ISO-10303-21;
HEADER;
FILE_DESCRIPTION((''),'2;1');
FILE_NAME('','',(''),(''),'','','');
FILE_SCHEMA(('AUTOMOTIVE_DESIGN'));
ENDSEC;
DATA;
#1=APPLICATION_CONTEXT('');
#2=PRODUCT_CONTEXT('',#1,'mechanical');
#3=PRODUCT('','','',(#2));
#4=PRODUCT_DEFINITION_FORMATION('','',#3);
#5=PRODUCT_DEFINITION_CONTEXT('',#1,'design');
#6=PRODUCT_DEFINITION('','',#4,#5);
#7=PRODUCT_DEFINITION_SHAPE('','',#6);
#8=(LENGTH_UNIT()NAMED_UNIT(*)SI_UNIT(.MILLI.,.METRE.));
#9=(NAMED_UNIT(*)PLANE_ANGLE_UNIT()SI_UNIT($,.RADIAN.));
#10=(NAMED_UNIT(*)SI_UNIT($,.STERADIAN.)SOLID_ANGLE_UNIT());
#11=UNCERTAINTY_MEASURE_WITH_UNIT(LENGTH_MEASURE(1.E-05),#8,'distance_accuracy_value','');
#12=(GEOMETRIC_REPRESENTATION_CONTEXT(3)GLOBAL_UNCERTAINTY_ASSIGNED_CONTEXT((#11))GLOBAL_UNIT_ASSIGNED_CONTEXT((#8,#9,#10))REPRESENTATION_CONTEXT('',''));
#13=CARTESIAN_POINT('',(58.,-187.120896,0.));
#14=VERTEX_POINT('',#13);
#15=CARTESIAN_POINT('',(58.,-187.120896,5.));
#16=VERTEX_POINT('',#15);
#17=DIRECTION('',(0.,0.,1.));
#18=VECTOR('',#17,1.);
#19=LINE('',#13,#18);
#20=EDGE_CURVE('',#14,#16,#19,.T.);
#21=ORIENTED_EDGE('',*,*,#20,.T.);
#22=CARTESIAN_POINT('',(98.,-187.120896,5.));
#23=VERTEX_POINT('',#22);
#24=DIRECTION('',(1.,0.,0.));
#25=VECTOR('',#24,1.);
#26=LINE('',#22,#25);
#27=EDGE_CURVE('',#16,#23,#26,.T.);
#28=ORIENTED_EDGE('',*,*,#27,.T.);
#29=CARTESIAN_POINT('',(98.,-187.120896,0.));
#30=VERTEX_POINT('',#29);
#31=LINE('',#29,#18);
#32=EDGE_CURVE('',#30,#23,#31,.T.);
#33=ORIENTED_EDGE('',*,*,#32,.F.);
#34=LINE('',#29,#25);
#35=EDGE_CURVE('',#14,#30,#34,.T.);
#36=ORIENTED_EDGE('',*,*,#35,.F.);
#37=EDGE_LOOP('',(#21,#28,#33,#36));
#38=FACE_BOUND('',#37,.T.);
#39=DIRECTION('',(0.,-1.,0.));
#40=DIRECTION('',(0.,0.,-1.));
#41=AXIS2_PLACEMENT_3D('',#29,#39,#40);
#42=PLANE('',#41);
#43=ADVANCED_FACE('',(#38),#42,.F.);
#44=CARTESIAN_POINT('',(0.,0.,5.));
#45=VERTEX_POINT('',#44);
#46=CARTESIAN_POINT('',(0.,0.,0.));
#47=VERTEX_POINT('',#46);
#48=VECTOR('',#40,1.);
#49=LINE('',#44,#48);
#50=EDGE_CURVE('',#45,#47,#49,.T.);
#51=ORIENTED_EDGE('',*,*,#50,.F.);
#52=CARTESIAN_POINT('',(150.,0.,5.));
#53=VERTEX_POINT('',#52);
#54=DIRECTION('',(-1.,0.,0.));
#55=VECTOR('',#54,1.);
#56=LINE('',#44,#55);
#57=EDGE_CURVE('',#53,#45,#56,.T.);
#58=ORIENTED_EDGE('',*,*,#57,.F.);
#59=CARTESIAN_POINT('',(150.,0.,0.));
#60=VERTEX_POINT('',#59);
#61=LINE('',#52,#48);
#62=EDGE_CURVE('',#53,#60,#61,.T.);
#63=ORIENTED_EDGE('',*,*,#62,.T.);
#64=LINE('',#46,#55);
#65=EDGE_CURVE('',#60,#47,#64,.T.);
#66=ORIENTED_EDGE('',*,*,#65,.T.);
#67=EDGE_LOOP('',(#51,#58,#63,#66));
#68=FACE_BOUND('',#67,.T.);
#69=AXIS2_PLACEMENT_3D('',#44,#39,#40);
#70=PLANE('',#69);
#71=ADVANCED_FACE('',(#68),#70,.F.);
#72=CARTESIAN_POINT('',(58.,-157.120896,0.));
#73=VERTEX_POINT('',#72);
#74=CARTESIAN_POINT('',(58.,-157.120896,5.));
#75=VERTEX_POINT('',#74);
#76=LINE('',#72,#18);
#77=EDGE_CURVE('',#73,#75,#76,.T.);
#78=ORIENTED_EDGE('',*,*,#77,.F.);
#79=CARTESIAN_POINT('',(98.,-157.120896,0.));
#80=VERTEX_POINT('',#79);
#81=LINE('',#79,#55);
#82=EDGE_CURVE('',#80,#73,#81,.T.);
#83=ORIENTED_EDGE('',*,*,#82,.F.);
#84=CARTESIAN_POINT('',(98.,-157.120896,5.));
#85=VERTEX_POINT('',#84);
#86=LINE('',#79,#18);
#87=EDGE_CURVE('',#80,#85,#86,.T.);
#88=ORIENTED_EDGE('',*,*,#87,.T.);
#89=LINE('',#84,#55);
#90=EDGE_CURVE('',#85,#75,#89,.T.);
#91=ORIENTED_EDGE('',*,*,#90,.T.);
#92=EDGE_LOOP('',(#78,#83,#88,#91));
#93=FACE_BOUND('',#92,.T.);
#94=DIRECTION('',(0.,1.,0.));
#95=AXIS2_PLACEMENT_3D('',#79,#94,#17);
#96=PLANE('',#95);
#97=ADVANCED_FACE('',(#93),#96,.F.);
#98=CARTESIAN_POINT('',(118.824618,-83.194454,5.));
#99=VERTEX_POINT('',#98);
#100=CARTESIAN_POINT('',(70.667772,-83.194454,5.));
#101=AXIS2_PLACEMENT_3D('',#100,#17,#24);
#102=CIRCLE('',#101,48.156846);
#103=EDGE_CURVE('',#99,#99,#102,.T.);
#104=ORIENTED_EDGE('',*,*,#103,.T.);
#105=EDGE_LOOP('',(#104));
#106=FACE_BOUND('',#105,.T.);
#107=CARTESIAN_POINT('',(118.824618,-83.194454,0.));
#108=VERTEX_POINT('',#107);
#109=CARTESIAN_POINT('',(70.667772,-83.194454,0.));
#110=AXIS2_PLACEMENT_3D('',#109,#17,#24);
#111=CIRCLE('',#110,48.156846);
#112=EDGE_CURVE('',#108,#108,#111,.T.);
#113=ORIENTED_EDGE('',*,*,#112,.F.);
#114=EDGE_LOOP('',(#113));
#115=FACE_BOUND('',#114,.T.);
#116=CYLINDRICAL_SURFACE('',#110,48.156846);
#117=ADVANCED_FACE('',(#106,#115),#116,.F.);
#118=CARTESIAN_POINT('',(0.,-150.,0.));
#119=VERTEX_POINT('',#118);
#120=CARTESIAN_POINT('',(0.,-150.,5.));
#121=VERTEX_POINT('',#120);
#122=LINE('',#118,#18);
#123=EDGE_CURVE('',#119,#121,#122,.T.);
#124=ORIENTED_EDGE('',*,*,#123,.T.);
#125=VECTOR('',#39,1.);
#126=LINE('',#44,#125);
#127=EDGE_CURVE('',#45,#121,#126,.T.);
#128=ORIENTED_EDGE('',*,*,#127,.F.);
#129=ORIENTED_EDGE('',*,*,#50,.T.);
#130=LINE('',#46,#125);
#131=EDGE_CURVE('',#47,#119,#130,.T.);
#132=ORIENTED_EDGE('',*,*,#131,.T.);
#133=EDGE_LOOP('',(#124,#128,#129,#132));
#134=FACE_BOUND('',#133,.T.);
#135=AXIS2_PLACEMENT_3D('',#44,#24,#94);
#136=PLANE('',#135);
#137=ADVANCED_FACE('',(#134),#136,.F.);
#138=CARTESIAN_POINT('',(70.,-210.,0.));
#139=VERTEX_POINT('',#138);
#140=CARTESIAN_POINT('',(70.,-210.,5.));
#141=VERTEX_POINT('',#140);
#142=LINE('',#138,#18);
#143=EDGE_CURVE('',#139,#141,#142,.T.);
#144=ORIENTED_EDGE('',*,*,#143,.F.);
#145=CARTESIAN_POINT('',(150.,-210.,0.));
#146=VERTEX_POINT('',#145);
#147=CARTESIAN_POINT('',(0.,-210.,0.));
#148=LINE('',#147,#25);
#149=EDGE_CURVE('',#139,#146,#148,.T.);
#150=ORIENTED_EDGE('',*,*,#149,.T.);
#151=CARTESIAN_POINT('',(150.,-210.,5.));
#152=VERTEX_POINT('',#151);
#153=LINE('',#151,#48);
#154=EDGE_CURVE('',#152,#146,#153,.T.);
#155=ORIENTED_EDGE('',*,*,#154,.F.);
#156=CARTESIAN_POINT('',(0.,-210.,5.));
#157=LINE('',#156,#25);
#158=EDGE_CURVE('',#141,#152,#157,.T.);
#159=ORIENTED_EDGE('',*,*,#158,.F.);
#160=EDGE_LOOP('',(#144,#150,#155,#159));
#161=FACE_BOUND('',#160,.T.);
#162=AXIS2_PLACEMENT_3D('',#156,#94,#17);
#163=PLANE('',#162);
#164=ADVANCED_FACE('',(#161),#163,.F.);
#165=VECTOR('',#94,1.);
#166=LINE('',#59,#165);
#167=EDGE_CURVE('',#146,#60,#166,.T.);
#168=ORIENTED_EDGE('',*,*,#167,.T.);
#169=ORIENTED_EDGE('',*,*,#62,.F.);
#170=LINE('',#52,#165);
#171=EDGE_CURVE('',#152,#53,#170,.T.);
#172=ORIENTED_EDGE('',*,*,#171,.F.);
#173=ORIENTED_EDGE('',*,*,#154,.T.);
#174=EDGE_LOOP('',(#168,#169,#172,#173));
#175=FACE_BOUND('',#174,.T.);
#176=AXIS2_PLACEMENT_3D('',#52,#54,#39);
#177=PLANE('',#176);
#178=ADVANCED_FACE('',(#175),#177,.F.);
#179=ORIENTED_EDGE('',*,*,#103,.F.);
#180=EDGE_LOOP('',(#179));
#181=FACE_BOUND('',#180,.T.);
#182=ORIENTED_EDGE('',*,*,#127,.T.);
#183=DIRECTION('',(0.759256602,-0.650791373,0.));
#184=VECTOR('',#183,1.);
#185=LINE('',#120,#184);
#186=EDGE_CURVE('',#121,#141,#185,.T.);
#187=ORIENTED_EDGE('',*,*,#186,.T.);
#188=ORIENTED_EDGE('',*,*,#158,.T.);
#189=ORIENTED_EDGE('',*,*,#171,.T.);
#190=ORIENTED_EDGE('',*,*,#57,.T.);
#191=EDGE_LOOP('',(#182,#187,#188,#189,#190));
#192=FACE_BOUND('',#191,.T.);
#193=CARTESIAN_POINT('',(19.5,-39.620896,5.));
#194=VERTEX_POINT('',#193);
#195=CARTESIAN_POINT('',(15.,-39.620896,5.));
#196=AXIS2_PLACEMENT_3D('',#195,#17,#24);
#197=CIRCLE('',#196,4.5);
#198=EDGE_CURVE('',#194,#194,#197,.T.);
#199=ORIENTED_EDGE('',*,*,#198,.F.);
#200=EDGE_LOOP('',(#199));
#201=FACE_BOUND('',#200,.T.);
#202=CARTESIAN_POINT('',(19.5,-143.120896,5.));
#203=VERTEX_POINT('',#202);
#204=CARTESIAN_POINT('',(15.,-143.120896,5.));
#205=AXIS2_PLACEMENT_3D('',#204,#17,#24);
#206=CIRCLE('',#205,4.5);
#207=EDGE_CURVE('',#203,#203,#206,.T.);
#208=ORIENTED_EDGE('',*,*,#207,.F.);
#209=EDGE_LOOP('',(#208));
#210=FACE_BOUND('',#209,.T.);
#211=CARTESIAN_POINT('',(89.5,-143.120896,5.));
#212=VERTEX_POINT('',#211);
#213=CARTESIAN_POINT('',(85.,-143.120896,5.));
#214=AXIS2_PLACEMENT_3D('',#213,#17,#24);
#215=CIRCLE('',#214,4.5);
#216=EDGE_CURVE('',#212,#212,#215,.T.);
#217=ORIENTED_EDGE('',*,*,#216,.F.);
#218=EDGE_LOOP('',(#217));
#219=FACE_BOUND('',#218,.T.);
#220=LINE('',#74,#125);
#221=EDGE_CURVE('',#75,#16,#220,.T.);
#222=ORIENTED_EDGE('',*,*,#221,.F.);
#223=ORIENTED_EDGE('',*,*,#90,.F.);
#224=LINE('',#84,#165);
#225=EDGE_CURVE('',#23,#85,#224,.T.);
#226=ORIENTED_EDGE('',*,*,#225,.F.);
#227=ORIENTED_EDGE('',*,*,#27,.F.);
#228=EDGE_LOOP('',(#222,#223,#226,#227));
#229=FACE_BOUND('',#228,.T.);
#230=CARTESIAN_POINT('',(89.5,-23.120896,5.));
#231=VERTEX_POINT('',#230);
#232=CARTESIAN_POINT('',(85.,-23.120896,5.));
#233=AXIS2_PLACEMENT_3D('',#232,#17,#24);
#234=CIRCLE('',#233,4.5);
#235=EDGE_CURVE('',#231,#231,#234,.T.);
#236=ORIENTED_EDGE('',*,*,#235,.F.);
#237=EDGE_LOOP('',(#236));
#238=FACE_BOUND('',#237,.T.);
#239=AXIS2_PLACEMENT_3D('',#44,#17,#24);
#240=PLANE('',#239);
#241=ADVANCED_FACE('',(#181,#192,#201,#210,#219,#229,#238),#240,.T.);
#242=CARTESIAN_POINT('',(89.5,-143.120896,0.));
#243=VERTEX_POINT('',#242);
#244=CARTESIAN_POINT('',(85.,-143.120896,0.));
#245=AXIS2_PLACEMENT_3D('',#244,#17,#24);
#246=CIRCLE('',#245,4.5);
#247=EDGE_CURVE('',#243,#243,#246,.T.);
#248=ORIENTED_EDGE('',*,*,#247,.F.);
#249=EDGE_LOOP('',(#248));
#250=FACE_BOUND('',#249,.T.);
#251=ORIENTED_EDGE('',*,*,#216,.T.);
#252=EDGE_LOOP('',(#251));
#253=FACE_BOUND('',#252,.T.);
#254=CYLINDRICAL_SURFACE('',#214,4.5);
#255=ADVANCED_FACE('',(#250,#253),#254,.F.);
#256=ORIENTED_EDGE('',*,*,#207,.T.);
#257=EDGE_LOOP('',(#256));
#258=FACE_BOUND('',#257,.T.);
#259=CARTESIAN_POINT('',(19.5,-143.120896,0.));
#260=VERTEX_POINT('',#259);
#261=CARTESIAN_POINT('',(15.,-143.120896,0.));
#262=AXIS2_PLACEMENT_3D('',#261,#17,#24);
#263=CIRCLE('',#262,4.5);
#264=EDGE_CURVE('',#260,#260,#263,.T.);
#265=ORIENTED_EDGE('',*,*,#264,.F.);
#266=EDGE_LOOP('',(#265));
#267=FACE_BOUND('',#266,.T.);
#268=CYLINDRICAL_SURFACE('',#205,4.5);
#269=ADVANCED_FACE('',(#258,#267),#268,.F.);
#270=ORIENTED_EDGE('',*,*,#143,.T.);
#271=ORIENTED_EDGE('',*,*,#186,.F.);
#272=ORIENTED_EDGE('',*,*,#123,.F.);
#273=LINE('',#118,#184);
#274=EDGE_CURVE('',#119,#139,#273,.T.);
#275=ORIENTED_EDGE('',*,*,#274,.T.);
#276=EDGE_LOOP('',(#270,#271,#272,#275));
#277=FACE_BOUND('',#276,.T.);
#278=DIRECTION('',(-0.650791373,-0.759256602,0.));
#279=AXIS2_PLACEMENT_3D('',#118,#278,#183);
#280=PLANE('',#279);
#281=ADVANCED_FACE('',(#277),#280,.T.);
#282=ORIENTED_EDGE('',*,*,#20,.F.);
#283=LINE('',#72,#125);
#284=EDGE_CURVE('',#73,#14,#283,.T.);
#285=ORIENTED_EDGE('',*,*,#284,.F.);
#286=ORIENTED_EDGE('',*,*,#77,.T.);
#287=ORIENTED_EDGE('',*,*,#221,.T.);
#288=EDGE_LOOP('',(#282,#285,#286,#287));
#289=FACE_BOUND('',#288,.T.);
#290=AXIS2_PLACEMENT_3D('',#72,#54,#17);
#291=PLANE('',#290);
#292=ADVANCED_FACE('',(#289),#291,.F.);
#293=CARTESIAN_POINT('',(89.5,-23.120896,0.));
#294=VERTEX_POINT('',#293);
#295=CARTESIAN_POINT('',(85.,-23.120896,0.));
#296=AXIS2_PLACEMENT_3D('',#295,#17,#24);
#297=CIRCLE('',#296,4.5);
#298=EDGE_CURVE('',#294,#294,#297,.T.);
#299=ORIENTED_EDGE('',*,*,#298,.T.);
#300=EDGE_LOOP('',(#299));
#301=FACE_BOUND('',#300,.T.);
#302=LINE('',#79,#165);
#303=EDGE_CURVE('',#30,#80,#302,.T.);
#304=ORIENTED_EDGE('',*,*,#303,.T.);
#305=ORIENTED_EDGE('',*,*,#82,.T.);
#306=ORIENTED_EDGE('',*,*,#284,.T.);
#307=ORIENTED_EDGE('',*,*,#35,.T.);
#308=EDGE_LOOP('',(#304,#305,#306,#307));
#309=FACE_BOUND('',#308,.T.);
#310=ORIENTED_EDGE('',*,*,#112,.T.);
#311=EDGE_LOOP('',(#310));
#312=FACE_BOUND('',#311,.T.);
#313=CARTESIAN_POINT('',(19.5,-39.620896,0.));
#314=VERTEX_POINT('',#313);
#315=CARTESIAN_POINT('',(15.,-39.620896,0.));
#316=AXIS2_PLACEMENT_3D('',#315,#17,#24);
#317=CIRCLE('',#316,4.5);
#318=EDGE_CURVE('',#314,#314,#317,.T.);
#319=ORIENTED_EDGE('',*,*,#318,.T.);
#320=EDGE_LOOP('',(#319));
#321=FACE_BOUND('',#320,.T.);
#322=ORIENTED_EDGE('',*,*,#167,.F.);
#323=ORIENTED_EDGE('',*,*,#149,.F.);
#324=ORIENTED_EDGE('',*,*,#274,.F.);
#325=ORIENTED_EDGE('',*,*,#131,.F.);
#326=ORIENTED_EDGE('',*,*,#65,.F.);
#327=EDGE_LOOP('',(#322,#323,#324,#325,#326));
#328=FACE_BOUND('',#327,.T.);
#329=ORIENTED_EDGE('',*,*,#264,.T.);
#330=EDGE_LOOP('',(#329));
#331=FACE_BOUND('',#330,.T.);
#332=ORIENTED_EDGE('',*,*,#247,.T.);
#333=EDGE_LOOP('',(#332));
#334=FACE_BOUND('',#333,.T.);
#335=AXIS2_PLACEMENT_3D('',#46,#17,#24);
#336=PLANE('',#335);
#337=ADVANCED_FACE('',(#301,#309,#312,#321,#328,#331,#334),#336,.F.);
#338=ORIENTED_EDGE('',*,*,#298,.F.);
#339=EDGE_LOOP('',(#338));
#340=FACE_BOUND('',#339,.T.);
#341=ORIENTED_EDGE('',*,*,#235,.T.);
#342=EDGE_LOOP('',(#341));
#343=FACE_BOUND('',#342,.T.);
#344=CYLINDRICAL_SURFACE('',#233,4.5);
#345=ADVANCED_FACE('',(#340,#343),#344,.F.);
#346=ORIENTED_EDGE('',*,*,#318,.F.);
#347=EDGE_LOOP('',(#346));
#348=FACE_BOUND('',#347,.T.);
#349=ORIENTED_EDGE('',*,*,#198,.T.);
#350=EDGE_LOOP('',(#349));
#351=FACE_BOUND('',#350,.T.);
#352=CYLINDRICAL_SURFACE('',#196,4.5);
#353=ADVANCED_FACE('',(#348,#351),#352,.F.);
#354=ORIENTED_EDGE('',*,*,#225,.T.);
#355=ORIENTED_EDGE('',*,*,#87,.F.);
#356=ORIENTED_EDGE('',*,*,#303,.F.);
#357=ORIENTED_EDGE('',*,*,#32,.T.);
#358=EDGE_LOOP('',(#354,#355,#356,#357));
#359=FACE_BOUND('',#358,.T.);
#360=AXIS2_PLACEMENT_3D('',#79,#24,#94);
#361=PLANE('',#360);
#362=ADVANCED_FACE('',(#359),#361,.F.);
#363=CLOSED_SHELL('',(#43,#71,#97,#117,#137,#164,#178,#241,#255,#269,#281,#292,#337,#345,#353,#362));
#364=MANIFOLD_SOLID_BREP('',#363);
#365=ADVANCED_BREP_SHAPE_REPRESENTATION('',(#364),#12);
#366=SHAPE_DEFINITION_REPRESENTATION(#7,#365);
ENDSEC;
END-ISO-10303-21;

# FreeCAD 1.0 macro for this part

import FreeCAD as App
import Part
import Sketcher

V = App.Vector
Q = App.Units.Quantity

doc = App.newDocument("Part")
body = doc.addObject("PartDesign::Body", "Body")

# Sketch on XY plane
sketch1 = body.newObject("Sketcher::SketchObject", "Sketch")
sketch1.AttachmentSupport = (doc.getObject("XY_Plane"), [""])
sketch1.MapMode = "FlatFace"
sketch1.addGeometry([
    Part.LineSegment(V(0, 0, 0), V(0, -210, 0)),
    Part.LineSegment(V(0, -210, 0), V(150, -210, 0)),
    Part.LineSegment(V(150, -210, 0), V(150, 0, 0)),
    Part.LineSegment(V(150, 0, 0), V(0, 0, 0)),
], False)
sketch1.addConstraint([
    Sketcher.Constraint("Coincident", 0, 2, 1, 1),
    Sketcher.Constraint("Coincident", 1, 2, 2, 1),
    Sketcher.Constraint("Coincident", 2, 2, 3, 1),
    Sketcher.Constraint("Coincident", 3, 2, 0, 1),
    Sketcher.Constraint("Vertical", 0),
    Sketcher.Constraint("Horizontal", 1),
    Sketcher.Constraint("Vertical", 2),
    Sketcher.Constraint("Horizontal", 3),
    Sketcher.Constraint("Coincident", 3, 2, -1, 1),
    Sketcher.Constraint("DistanceX", 1, 1, 1, 2, Q("150 mm")),
    Sketcher.Constraint("DistanceY", 0, 2, 0, 1, Q("210 mm")),
])
pad1 = body.newObject("PartDesign::Pad", "Pad")
pad1.Profile = sketch1
pad1.Length = 5

# Sketch on XY plane
sketch2 = body.newObject("Sketcher::SketchObject", "Sketch001")
sketch2.AttachmentSupport = (doc.getObject("XY_Plane"), [""])
sketch2.MapMode = "FlatFace"
sketch2.AttachmentOffset = App.Placement(V(0, 0, 5), App.Rotation())
sketch2.addGeometry([
    Part.Circle(V(85, -23.1, 0), V(0, 0, 1), 4.5),
    Part.Circle(V(85, -143.1, 0), V(0, 0, 1), 4.5),
    Part.Circle(V(15, -143.1, 0), V(0, 0, 1), 4.5),
    Part.Circle(V(15, -39.6, 0), V(0, 0, 1), 4.5),
], False)
sketch2.addConstraint([
    Sketcher.Constraint("Equal", 0, 1),
    Sketcher.Constraint("Equal", 1, 2),
    Sketcher.Constraint("Equal", 2, 3),
    Sketcher.Constraint("Horizontal", 1, 3, 2, 3),
    Sketcher.Constraint("Vertical", 0, 3, 1, 3),
    Sketcher.Constraint("Vertical", 2, 3, 3, 3),
    Sketcher.Constraint("Diameter", 0, Q("9 mm")),
    Sketcher.Constraint("DistanceX", -1, 1, 0, 3, Q("85 mm")),
    Sketcher.Constraint("DistanceX", -1, 1, 2, 3, Q("15 mm")),
    Sketcher.Constraint("DistanceY", 1, 3, 0, 3, Q("120 mm")),
    Sketcher.Constraint("DistanceY", 3, 3, 0, 3, Q("16.5 mm")),
    Sketcher.Constraint("DistanceY", 0, 3, -1, 1, Q("23.120896 mm")),
])
doc.recompute()
hole = body.newObject("PartDesign::Hole", "Hole")
hole.Profile = sketch2
hole.ThreadType = "None"
hole.Diameter = 9
hole.DepthType = "ThroughAll"

# Sketch on XY plane
sketch3 = body.newObject("Sketcher::SketchObject", "Sketch002")
sketch3.AttachmentSupport = (doc.getObject("XY_Plane"), [""])
sketch3.MapMode = "FlatFace"
sketch3.AttachmentOffset = App.Placement(V(0, 0, 5), App.Rotation())
sketch3.addGeometry([
    Part.LineSegment(V(58, -157, 0), V(58, -187, 0)),
    Part.LineSegment(V(58, -187, 0), V(98, -187, 0)),
    Part.LineSegment(V(98, -187, 0), V(98, -157, 0)),
    Part.LineSegment(V(98, -157, 0), V(58, -157, 0)),
], False)
sketch3.addConstraint([
    Sketcher.Constraint("Coincident", 0, 2, 1, 1),
    Sketcher.Constraint("Coincident", 1, 2, 2, 1),
    Sketcher.Constraint("Coincident", 2, 2, 3, 1),
    Sketcher.Constraint("Coincident", 3, 2, 0, 1),
    Sketcher.Constraint("Vertical", 0),
    Sketcher.Constraint("Horizontal", 1),
    Sketcher.Constraint("Vertical", 2),
    Sketcher.Constraint("Horizontal", 3),
    Sketcher.Constraint("DistanceX", 1, 1, 1, 2, Q("40 mm")),
    Sketcher.Constraint("DistanceY", 0, 2, 0, 1, Q("30 mm")),
    Sketcher.Constraint("DistanceX", -1, 1, 0, 2, Q("58 mm")),
    Sketcher.Constraint("DistanceY", 0, 2, -1, 1, Q("187.120896 mm")),
])
pocket1 = body.newObject("PartDesign::Pocket", "Pocket")
pocket1.Profile = sketch3
pocket1.Length = 5

# Sketch on XY plane
sketch4 = body.newObject("Sketcher::SketchObject", "Sketch003")
sketch4.AttachmentSupport = (doc.getObject("XY_Plane"), [""])
sketch4.MapMode = "FlatFace"
sketch4.AttachmentOffset = App.Placement(V(0, 0, 5), App.Rotation())
sketch4.addGeometry([
    Part.LineSegment(V(0, -150, 0), V(0, -210, 0)),
    Part.LineSegment(V(0, -210, 0), V(70, -210, 0)),
    Part.LineSegment(V(70, -210, 0), V(0, -150, 0)),
], False)
sketch4.addConstraint([
    Sketcher.Constraint("Coincident", 0, 2, 1, 1),
    Sketcher.Constraint("Coincident", 1, 2, 2, 1),
    Sketcher.Constraint("Coincident", 2, 2, 0, 1),
    Sketcher.Constraint("Vertical", 0),
    Sketcher.Constraint("Horizontal", 1),
    Sketcher.Constraint("PointOnObject", 0, 2, -2),
    Sketcher.Constraint("DistanceX", 1, 1, 1, 2, Q("70 mm")),
    Sketcher.Constraint("DistanceY", 0, 2, 0, 1, Q("60 mm")),
    Sketcher.Constraint("DistanceY", 0, 2, -1, 1, Q("210 mm")),
])
pocket2 = body.newObject("PartDesign::Pocket", "Pocket001")
pocket2.Profile = sketch4
pocket2.Length = 5

# Sketch on XY plane
sketch5 = body.newObject("Sketcher::SketchObject", "Sketch004")
sketch5.AttachmentSupport = (doc.getObject("XY_Plane"), [""])
sketch5.MapMode = "FlatFace"
sketch5.AttachmentOffset = App.Placement(V(0, 0, 5), App.Rotation())
sketch5.addGeometry(Part.Circle(V(71, -83, 0), V(0, 0, 1), 48), False)
sketch5.addConstraint([
    Sketcher.Constraint("Diameter", 0, Q("96.313692 mm")),
    Sketcher.Constraint("DistanceX", -1, 1, 0, 3, Q("70.667772 mm")),
    Sketcher.Constraint("DistanceY", 0, 3, -1, 1, Q("83.194454 mm")),
])
pocket3 = body.newObject("PartDesign::Pocket", "Pocket002")
pocket3.Profile = sketch5
pocket3.Length = 5

doc.recompute()
